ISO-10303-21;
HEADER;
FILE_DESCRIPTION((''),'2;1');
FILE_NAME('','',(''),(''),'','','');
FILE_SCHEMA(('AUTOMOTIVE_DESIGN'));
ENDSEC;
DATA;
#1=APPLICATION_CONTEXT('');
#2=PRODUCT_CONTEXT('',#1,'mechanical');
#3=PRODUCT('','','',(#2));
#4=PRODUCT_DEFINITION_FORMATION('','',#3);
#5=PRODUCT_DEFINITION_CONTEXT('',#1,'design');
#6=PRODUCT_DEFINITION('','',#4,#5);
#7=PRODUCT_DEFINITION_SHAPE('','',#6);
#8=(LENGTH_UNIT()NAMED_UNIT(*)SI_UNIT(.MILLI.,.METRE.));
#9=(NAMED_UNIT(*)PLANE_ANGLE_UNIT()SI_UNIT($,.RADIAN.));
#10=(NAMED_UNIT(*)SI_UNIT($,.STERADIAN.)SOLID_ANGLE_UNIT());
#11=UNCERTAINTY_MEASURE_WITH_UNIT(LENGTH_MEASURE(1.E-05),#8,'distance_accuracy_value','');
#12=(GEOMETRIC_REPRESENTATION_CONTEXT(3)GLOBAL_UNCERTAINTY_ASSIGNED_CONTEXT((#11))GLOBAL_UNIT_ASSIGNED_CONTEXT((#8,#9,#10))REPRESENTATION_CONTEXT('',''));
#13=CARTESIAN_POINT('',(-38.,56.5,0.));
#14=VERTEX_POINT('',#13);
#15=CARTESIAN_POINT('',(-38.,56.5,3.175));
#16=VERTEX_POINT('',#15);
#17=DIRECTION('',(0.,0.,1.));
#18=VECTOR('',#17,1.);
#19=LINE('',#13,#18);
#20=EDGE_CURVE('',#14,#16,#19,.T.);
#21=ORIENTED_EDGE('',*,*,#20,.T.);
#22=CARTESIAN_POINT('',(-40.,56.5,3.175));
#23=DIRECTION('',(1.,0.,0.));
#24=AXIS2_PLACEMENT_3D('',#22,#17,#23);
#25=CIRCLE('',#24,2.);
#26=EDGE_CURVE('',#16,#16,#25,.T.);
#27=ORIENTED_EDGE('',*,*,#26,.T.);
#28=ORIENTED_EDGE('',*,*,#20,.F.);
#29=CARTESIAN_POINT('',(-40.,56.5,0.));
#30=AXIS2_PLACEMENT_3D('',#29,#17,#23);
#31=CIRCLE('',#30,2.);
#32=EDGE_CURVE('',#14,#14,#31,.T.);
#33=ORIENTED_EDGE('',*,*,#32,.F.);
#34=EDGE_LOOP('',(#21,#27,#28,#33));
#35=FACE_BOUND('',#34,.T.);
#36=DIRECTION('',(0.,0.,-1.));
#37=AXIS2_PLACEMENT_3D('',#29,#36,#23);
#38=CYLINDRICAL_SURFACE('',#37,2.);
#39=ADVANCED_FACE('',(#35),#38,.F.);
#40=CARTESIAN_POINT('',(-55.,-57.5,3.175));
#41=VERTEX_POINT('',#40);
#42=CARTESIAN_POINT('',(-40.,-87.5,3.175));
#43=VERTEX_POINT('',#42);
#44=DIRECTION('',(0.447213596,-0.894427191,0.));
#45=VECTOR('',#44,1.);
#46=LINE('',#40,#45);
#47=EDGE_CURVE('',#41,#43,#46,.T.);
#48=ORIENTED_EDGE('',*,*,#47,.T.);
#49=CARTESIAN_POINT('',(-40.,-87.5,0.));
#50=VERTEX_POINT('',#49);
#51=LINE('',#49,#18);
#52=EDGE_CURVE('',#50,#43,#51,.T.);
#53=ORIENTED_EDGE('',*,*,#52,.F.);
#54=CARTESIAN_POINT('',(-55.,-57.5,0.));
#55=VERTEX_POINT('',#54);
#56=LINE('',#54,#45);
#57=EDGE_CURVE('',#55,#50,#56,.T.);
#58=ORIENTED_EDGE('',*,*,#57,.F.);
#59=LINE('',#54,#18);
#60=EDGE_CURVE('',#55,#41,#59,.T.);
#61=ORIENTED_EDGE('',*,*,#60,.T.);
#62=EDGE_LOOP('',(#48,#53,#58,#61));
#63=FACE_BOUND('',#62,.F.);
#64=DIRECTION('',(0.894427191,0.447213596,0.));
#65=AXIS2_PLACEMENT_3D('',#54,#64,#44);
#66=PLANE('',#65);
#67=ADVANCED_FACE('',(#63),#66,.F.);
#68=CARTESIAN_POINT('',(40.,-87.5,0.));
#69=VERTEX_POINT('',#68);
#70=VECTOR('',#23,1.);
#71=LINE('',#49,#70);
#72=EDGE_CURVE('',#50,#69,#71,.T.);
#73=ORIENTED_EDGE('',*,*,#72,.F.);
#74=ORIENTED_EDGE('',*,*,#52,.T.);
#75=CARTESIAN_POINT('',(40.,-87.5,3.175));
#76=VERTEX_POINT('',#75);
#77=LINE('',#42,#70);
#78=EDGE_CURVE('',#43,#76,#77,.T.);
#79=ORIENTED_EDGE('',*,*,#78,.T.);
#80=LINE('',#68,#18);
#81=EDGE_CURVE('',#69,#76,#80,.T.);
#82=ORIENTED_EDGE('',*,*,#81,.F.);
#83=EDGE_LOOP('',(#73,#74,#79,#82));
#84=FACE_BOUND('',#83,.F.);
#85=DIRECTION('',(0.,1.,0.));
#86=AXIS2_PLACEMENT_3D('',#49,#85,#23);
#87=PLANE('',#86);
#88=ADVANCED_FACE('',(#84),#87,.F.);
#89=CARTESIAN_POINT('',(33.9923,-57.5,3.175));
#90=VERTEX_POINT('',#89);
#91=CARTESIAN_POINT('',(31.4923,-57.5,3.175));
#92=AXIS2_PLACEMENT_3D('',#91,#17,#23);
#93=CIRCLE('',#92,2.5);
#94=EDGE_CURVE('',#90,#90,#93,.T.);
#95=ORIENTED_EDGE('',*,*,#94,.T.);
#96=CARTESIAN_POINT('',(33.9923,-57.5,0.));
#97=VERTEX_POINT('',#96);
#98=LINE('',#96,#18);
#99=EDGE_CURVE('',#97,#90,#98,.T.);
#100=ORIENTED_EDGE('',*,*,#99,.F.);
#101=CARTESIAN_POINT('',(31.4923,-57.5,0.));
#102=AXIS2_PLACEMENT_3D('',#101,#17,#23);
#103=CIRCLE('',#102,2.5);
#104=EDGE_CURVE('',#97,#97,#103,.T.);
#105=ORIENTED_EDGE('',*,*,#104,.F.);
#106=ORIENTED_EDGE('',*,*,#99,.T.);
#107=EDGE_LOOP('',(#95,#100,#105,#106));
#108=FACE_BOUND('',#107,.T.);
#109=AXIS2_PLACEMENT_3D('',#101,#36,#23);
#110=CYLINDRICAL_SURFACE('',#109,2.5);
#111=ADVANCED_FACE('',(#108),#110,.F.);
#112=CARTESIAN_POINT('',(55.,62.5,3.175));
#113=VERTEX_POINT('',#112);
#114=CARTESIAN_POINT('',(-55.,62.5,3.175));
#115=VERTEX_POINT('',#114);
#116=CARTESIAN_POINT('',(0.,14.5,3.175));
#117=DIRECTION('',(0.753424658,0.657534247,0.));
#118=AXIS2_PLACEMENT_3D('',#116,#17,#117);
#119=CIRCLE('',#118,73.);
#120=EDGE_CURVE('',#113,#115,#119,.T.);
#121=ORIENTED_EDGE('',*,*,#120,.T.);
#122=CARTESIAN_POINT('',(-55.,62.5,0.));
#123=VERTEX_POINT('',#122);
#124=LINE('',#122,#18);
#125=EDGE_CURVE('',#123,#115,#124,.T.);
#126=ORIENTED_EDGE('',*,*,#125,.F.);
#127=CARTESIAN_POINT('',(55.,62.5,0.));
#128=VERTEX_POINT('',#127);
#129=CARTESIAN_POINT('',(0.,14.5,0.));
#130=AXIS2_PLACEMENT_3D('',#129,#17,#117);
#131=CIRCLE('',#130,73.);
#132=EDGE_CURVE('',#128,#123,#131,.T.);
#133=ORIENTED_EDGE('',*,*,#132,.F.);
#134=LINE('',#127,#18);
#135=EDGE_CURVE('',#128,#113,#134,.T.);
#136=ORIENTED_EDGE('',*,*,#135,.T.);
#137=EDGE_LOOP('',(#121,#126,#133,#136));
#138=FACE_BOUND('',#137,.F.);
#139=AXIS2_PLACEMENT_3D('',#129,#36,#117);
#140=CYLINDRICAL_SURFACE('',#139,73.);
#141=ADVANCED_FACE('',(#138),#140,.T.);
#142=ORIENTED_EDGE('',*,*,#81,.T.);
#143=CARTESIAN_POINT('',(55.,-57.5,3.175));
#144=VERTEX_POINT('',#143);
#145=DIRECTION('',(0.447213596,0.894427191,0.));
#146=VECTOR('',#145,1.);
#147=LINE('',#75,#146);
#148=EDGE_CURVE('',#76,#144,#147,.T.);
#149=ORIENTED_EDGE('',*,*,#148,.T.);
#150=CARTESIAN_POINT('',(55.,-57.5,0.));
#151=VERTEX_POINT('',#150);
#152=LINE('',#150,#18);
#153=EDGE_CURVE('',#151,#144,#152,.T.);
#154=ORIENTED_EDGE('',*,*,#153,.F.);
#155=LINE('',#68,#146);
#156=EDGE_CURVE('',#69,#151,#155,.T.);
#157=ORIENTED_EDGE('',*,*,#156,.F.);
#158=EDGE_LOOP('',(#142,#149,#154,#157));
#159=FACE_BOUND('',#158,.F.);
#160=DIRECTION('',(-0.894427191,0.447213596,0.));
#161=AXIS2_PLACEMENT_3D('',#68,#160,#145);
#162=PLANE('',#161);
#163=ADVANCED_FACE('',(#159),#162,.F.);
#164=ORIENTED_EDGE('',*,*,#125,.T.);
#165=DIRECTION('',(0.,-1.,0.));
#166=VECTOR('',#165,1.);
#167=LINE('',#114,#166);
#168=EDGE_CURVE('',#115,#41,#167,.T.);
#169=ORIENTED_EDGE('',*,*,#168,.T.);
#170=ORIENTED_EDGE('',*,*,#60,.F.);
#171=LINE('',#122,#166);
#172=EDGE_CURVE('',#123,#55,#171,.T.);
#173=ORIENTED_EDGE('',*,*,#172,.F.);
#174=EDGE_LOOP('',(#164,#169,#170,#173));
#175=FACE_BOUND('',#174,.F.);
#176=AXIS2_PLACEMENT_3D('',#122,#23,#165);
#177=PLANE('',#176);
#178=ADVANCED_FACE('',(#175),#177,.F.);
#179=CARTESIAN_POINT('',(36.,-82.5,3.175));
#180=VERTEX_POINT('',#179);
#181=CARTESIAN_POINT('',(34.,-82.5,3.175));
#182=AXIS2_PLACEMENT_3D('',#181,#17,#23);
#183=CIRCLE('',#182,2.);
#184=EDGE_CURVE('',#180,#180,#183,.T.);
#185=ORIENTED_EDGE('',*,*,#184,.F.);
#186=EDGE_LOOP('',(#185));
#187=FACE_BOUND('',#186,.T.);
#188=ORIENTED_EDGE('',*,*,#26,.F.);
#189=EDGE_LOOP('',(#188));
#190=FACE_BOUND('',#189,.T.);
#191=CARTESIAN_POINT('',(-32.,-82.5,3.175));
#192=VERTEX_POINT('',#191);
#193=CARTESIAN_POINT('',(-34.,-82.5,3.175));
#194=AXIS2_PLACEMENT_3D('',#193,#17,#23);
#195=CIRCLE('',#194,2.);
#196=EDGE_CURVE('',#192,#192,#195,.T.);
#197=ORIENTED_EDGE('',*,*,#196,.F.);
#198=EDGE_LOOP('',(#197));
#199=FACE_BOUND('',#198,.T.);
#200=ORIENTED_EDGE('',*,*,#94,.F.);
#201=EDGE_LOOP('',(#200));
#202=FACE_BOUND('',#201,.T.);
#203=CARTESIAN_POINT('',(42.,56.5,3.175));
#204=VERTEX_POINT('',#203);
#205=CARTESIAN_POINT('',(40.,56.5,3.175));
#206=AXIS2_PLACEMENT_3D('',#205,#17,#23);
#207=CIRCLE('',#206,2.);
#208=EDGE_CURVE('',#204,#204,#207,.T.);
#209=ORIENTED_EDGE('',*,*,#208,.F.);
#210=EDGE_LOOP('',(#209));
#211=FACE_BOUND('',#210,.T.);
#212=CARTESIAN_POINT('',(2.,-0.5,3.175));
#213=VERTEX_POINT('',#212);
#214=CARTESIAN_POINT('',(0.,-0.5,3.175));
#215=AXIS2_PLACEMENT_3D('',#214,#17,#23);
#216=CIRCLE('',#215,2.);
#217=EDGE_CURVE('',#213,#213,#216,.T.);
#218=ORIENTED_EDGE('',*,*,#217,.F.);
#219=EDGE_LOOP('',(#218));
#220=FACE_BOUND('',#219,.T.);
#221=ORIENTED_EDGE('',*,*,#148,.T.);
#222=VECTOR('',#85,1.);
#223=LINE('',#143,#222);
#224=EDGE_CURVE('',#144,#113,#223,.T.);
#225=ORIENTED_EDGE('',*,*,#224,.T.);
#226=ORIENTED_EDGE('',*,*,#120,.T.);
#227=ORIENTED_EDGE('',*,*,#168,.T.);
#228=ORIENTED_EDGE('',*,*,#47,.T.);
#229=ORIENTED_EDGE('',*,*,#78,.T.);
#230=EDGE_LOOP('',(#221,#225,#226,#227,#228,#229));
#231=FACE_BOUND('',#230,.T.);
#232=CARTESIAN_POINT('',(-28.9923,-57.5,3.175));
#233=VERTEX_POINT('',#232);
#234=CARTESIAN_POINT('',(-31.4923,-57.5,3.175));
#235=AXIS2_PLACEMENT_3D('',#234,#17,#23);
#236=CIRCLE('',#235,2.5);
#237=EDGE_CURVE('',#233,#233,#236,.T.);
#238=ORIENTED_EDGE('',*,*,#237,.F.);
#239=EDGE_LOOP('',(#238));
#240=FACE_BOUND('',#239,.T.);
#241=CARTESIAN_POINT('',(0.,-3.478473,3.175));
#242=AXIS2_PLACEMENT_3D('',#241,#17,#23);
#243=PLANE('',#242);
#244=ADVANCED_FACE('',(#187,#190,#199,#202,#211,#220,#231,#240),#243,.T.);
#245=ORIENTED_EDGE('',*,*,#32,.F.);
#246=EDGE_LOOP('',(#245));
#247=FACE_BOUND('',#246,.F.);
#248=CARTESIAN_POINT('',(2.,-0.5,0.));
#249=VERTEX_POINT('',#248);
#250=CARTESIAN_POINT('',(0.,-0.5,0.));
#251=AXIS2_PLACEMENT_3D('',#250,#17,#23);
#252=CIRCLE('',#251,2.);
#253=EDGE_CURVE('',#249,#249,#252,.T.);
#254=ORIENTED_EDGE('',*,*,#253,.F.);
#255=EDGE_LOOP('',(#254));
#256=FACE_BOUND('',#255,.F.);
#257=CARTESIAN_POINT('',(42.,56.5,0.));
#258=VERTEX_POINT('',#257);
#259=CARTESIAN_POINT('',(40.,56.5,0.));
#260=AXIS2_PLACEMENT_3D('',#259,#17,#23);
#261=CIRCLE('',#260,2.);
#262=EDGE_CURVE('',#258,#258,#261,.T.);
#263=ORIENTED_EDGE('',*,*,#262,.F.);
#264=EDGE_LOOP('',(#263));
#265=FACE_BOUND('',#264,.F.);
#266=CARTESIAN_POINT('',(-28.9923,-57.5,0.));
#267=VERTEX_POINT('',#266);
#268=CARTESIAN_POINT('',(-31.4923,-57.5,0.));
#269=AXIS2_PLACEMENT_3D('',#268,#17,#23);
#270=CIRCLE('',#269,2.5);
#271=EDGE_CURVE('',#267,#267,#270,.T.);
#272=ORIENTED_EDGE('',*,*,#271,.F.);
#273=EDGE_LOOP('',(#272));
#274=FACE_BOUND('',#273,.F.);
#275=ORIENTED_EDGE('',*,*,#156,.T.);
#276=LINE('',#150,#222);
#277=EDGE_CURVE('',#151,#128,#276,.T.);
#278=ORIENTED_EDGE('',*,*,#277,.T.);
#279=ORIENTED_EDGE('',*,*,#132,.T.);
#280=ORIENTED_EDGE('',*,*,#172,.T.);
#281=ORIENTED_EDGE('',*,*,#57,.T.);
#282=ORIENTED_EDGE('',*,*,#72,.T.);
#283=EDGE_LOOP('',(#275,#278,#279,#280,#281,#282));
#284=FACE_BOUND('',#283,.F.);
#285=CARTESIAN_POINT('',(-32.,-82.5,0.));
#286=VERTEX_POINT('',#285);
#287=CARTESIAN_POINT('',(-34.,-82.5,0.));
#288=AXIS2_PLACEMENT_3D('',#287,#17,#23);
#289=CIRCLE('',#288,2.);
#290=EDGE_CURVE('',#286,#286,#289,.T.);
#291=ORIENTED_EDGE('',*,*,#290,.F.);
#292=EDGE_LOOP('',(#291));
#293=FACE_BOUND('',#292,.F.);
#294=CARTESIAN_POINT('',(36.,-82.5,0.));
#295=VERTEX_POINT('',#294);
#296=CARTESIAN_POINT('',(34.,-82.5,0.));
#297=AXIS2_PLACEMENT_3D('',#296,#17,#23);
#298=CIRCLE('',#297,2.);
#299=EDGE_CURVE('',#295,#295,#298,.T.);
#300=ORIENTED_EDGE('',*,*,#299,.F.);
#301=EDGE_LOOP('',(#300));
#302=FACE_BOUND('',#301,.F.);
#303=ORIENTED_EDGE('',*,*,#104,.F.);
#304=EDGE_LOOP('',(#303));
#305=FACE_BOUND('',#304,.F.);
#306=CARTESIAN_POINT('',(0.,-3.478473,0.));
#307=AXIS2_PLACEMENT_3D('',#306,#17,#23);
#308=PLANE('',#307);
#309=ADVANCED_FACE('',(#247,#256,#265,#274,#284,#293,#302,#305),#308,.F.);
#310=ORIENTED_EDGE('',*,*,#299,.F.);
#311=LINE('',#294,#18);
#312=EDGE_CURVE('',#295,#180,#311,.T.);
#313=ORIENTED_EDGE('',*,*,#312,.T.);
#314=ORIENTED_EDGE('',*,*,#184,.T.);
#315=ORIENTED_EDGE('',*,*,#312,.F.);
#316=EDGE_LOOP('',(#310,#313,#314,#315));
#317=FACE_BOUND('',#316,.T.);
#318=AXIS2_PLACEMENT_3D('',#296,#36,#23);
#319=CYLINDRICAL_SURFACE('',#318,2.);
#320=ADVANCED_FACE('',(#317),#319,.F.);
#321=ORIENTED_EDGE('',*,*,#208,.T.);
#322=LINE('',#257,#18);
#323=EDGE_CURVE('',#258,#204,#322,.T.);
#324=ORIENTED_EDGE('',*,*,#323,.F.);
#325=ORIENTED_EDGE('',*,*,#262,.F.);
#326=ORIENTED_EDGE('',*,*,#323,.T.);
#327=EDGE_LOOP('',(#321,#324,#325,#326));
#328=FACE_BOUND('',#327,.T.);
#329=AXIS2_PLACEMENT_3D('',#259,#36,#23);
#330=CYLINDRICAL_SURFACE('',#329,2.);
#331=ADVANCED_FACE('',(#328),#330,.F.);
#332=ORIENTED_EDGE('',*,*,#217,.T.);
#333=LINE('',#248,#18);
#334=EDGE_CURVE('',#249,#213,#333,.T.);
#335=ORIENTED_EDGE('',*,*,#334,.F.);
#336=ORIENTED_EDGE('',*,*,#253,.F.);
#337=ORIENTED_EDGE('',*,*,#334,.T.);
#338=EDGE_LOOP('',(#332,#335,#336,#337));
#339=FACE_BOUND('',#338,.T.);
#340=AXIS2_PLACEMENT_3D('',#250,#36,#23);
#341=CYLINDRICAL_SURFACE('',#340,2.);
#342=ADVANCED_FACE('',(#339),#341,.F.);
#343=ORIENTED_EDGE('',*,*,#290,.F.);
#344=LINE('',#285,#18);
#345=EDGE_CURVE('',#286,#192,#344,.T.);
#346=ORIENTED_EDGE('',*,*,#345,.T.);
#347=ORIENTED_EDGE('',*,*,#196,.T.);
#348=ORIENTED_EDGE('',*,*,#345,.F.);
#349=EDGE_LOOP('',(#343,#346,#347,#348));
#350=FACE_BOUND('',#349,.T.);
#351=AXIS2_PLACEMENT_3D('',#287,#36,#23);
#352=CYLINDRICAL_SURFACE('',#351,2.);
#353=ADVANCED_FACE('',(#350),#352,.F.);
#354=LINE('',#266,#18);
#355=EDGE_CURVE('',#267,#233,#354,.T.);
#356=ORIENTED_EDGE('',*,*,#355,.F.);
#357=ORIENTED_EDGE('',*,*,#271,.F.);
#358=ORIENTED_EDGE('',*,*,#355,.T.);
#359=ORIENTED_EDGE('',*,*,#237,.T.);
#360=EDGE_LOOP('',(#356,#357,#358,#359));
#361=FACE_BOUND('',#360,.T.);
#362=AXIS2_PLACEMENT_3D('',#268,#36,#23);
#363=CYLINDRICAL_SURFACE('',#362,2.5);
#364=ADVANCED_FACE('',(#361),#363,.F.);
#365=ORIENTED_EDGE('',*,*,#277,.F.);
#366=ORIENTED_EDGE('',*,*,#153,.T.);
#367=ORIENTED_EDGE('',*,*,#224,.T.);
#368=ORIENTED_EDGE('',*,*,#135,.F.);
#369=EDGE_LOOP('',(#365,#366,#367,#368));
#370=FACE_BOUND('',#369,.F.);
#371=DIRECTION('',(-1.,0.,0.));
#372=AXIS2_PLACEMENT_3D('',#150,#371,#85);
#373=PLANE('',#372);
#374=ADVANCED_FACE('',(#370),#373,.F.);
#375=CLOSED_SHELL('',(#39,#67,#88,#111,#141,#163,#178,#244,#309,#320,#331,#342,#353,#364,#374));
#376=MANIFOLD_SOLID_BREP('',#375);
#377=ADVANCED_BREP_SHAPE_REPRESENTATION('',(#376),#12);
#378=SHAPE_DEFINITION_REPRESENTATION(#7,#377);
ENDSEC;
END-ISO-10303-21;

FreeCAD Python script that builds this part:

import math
import FreeCAD as App
import Part
import Sketcher

V = App.Vector

doc = App.newDocument("Part")
body = doc.addObject("PartDesign::Body", "Body")

# Sketch on XY plane
sketch1 = body.newObject("Sketcher::SketchObject", "Sketch")
sketch1.AttachmentSupport = (doc.getObject("XY_Plane"), [""])
sketch1.MapMode = "FlatFace"
sketch1.addGeometry([
    Part.LineSegment(V(-55, -57.5, 0), V(-40, -87.5, 0)),  # 0
    Part.LineSegment(V(-40, -87.5, 0), V(40, -87.5, 0)),  # 1
    Part.LineSegment(V(40, -87.5, 0), V(55, -57.5, 0)),  # 2
    Part.LineSegment(V(55, -57.5, 0), V(55, 62.5, 0)),  # 3
    Part.ArcOfCircle(Part.Circle(V(0, 14.5, 0), V(0, 0, 1), 73), math.radians(41), math.radians(139)),  # 4
    Part.LineSegment(V(-55, 62.5, 0), V(-55, -57.5, 0)),  # 5
    Part.Circle(V(-34, -82.5, 0), V(0, 0, 1), 2),  # 6
    Part.Circle(V(-31.5, -57.5, 0), V(0, 0, 1), 2.5),  # 7
    Part.Circle(V(34, -82.5, 0), V(0, 0, 1), 2),  # 8
    Part.Circle(V(31.5, -57.5, 0), V(0, 0, 1), 2.5),  # 9
    Part.Circle(V(-40, 56.5, 0), V(0, 0, 1), 2),  # 10
    Part.Circle(V(0, -0.5, 0), V(0, 0, 1), 2),  # 11
    Part.Circle(V(40, 56.5, 0), V(0, 0, 1), 2),  # 12
], False)
sketch1.addConstraint([
    Sketcher.Constraint("Coincident", 0, 2, 1, 1),
    Sketcher.Constraint("Coincident", 1, 2, 2, 1),
    Sketcher.Constraint("Coincident", 2, 2, 3, 1),
    Sketcher.Constraint("Coincident", 3, 2, 4, 1),
    Sketcher.Constraint("Coincident", 4, 2, 5, 1),
    Sketcher.Constraint("Coincident", 5, 2, 0, 1),
    Sketcher.Constraint("Horizontal", 1),
    Sketcher.Constraint("Vertical", 3),
    Sketcher.Constraint("Vertical", 5),
    Sketcher.Constraint("Equal", 6, 8),
    Sketcher.Constraint("Equal", 7, 9),
    Sketcher.Constraint("Equal", 8, 10),
    Sketcher.Constraint("Equal", 10, 11),
    Sketcher.Constraint("Equal", 11, 12),
    Sketcher.Constraint("Symmetric", 6, 3, 8, 3, -2),
    Sketcher.Constraint("Symmetric", 7, 3, 9, 3, -2),
    Sketcher.Constraint("Symmetric", 10, 3, 12, 3, -2),
    Sketcher.Constraint("Symmetric", 3, 2, 4, 2, -2),
    Sketcher.Constraint("PointOnObject", 11, 3, -2),
    Sketcher.Constraint("Horizontal", 9, 3, 2, 2),
    Sketcher.Constraint("Horizontal", 2, 2, 5, 2),
    Sketcher.Constraint("Vertical", 10, 3, 0, 2),
    Sketcher.Constraint("Vertical", 12, 3, 1, 2),
    Sketcher.Constraint("Diameter", 6, 4.0),
    Sketcher.Constraint("Diameter", 7, 5.0),
    Sketcher.Constraint("Radius", 4, 73.0),
    Sketcher.Constraint("DistanceX", 1, 1, 1, 2, 80.0),
    Sketcher.Constraint("DistanceY", 3, 1, 3, 2, 120.0),
    Sketcher.Constraint("DistanceX", 6, 3, -1, 1, 34.0),
    Sketcher.Constraint("DistanceX", -1, 1, 2, 2, 55.0),
    Sketcher.Constraint("DistanceY", 6, 3, 4, 3, 97.0),
    Sketcher.Constraint("DistanceY", 4, 3, 10, 3, 42.0),
    Sketcher.Constraint("DistanceY", 11, 3, 4, 3, 15.0),
    Sketcher.Constraint("DistanceY", 0, 2, 6, 3, 5.0),
    Sketcher.Constraint("DistanceY", -1, 1, 4, 3, 14.5),
    Sketcher.Constraint("DistanceX", 7, 3, -1, 1, 31.4923),
])
pad1 = body.newObject("PartDesign::Pad", "Pad")
pad1.Profile = sketch1
pad1.Length = 3.175

doc.recompute()
